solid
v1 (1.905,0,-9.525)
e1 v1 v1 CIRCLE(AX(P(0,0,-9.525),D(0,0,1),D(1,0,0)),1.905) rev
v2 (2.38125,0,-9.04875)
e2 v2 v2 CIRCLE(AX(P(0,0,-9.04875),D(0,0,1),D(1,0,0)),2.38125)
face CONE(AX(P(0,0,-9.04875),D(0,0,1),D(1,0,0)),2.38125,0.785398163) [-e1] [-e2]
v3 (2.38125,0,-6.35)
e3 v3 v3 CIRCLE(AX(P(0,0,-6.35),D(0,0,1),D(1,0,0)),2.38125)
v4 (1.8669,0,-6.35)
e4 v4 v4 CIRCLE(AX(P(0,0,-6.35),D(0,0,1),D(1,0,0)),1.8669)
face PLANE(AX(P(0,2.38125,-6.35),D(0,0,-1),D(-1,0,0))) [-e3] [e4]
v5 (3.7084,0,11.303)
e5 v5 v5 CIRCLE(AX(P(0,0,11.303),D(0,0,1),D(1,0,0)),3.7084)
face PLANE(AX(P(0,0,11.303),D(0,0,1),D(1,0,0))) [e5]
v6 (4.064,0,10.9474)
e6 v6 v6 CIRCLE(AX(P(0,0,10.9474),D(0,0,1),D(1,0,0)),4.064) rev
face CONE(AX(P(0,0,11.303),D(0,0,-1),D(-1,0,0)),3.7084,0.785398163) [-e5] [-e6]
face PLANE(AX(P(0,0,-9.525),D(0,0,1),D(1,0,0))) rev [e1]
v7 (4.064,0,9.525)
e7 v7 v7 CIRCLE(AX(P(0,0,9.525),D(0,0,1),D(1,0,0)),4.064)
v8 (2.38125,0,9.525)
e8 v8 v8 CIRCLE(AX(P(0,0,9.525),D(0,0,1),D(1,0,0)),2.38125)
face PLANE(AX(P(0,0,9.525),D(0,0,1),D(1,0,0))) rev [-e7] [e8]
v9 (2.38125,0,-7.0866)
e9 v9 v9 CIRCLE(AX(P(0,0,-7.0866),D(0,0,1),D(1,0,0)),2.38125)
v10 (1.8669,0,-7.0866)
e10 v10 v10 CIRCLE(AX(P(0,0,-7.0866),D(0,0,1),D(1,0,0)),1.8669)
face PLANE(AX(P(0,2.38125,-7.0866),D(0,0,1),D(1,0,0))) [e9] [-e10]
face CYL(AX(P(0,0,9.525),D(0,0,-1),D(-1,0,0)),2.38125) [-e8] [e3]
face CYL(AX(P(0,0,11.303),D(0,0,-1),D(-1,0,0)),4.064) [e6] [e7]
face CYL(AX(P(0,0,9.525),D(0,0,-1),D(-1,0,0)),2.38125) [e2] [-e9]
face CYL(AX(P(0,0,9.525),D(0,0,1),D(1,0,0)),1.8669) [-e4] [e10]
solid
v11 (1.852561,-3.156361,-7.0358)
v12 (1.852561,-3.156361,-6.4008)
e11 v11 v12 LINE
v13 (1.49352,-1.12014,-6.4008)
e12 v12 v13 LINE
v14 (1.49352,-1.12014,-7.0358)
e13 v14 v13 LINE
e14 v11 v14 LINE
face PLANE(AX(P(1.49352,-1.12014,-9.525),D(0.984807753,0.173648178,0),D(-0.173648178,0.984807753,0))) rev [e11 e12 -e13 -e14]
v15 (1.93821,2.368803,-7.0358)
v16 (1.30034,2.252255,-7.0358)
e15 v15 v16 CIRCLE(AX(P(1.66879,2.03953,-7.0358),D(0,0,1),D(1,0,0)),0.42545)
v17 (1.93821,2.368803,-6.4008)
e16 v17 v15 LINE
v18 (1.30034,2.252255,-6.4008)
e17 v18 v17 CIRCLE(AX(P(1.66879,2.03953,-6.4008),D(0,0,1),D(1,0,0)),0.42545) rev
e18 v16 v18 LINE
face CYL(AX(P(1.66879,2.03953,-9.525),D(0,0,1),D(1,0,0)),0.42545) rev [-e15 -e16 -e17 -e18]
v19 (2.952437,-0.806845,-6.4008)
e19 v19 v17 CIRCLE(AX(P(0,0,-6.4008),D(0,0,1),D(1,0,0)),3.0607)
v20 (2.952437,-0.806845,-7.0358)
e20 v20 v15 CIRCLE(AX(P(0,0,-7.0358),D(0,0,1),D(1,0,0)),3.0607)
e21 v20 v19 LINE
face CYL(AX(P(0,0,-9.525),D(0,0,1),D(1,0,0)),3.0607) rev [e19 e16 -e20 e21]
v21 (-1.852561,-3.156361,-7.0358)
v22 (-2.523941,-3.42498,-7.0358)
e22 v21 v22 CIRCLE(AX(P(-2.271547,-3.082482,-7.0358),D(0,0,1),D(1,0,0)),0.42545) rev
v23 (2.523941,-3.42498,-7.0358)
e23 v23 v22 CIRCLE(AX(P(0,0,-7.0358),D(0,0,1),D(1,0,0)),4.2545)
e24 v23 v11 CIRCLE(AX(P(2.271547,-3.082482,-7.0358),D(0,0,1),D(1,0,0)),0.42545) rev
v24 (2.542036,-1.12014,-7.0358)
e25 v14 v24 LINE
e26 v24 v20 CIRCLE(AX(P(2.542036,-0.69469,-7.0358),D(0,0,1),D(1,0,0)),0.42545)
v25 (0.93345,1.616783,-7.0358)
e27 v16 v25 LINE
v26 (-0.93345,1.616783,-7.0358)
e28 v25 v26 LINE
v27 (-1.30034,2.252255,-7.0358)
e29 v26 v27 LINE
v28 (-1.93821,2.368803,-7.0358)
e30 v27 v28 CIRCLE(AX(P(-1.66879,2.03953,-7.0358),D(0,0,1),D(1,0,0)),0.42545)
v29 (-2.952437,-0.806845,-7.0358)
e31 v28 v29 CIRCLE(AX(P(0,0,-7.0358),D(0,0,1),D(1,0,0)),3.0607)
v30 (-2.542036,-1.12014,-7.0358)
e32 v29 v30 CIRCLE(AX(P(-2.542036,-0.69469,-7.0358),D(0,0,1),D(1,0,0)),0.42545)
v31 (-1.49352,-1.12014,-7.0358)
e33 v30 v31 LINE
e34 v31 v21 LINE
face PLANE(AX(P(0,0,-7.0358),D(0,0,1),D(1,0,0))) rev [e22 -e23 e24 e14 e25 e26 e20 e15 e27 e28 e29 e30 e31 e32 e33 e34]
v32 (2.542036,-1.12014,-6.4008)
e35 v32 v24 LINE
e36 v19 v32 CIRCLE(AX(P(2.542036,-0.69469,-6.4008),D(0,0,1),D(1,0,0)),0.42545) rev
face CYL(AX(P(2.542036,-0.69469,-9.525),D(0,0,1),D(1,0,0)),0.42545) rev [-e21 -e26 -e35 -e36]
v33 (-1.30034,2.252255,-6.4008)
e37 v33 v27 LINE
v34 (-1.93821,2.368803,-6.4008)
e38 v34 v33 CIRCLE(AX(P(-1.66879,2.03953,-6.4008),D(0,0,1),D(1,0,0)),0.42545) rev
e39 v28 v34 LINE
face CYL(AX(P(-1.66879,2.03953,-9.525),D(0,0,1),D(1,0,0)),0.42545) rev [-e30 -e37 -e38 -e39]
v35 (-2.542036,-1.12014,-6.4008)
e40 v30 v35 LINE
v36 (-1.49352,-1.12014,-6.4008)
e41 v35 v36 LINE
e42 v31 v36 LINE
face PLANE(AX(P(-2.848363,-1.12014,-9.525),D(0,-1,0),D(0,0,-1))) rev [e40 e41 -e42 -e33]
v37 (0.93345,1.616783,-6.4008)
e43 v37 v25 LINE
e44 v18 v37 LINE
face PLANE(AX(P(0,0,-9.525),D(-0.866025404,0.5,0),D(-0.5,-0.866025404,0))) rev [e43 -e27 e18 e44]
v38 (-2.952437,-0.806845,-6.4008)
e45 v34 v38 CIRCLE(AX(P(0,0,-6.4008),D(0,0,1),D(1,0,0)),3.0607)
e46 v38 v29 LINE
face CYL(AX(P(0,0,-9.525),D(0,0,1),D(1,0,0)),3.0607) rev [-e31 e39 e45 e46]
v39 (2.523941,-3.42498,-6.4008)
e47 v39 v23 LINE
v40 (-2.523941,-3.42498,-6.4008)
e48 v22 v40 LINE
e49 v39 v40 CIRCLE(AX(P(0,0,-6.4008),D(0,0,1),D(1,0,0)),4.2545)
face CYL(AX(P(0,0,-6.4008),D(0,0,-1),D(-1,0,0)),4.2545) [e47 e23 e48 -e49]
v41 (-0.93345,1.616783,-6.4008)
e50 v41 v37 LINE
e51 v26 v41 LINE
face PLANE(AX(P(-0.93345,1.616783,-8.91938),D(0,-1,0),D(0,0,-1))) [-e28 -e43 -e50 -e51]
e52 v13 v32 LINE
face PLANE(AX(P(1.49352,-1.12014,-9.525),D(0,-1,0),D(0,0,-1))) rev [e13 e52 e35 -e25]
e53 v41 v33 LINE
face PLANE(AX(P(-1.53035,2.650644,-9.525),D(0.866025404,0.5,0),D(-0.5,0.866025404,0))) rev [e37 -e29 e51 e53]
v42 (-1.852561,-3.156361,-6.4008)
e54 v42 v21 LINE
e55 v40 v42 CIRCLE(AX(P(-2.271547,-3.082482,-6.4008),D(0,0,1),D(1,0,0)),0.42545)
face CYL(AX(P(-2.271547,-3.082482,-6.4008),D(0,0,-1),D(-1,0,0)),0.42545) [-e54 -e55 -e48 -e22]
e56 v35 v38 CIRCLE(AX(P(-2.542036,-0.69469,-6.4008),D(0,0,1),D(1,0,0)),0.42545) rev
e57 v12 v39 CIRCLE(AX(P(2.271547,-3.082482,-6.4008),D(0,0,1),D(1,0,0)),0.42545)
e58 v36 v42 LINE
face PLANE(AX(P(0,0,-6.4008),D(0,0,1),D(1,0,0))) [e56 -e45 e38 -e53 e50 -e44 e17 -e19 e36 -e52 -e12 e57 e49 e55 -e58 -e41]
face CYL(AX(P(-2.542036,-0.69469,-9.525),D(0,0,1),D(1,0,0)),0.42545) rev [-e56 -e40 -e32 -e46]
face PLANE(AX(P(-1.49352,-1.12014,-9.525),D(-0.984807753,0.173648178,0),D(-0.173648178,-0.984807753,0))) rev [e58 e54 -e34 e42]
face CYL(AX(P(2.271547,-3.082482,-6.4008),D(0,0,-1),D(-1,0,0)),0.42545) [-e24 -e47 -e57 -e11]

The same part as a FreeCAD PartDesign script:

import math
import FreeCAD as App
import Part
import Sketcher
Q = App.Units.Quantity


def edges_at(feature, points):
    """Names of the edges that pass closest to the given points."""
    edges = feature.Shape.Edges
    near = lambda p: min(range(len(edges)), key=lambda i: edges[i].distToShape(Part.Vertex(*p))[0])
    return sorted({f"Edge{near(p) + 1}" for p in points})


def add_polygon(sketch, points):
    """Adds a closed chain of lines whose ends are joined by coincident constraints."""
    first, n = sketch.GeometryCount, len(points)
    for a, b in zip(points, points[1:] + points[:1]):
        sketch.addGeometry(Part.LineSegment(App.Vector(*a, 0), App.Vector(*b, 0)), False)
    for i in range(n):
        sketch.addConstraint(Sketcher.Constraint("Coincident", first + i, 2, first + (i + 1) % n, 1))

doc = App.newDocument("Part")
body = doc.addObject("PartDesign::Body", "Body")

sketch1 = body.newObject("Sketcher::SketchObject", "Sketch")
sketch1.AttachmentSupport = (doc.getObject("XY_Plane"), [""])
sketch1.MapMode = "FlatFace"
sketch1.addGeometry(Part.Circle(App.Vector(0, 0, 0), App.Vector(0, 0, 1), 2.38125), False)
sketch1.addConstraint([
    Sketcher.Constraint("Coincident", 0, 3, -1, 1),
    Sketcher.Constraint("Diameter", 0, Q("0.1875 in")),
])
pad1 = body.newObject("PartDesign::Pad", "Pad")
pad1.Profile = sketch1
pad1.Length = Q("0.75 in")
pad1.Midplane = True

sketch2 = body.newObject("Sketcher::SketchObject", "Sketch001")
sketch2.AttachmentSupport = (doc.getObject("YZ_Plane"), [""])
sketch2.MapMode = "FlatFace"
add_polygon(sketch2, [(2.38125, -6.35), (1.8669, -6.35), (1.8669, -7.0866), (2.38125, -7.0866)])
sketch2.addConstraint([
    Sketcher.Constraint("Horizontal", 0),
    Sketcher.Constraint("Vertical", 1),
    Sketcher.Constraint("Horizontal", 2),
    Sketcher.Constraint("Vertical", 3),
    Sketcher.Constraint("DistanceY", 1, 2, 1, 1, Q("0.029 in")),
    Sketcher.Constraint("DistanceY", 0, 2, -1, 1, Q("0.25 in")),
    Sketcher.Constraint("DistanceX", -1, 1, 2, 2, Q("0.09375 in")),
    Sketcher.Constraint("DistanceX", -1, 1, 0, 2, Q("0.0735 in")),
])
groove = body.newObject("PartDesign::Groove", "Groove")
groove.Profile = sketch2
groove.ReferenceAxis = (sketch2, ["V_Axis"])
groove.Angle = 360

sketch3 = body.newObject("Sketcher::SketchObject", "Sketch002")
sketch3.AttachmentSupport = (doc.getObject("XY_Plane"), [""])
sketch3.MapMode = "FlatFace"
sketch3.AttachmentOffset = App.Placement(App.Vector(0, 0, 0.375 * 25.4), App.Rotation())
sketch3.addGeometry(Part.Circle(App.Vector(0, 0, 0), App.Vector(0, 0, 1), 4.064), False)
sketch3.addConstraint([
    Sketcher.Constraint("Coincident", 0, 3, -1, 1),
    Sketcher.Constraint("Diameter", 0, Q("0.32 in")),
])
pad2 = body.newObject("PartDesign::Pad", "Pad001")
pad2.Profile = sketch3
pad2.Length = Q("0.07 in")
doc.recompute()

chamfer = body.newObject("PartDesign::Chamfer", "Chamfer")
chamfer.Base = (pad2, edges_at(pad2, [(-4.064, 0, 11.303)]))
chamfer.Size = Q("0.014 in")
doc.recompute()

chamfer2 = body.newObject("PartDesign::Chamfer", "Chamfer001")
chamfer2.Base = (chamfer, edges_at(chamfer, [(-2.381, 0, -9.525)]))
chamfer2.Size = 0.47625
body2 = doc.addObject("PartDesign::Body", "Body001")

sketch4 = body2.newObject("Sketcher::SketchObject", "Sketch003")
sketch4.AttachmentSupport = (doc.getObject("XY_Plane001"), [""])
sketch4.MapMode = "FlatFace"
sketch4.AttachmentOffset = App.Placement(App.Vector(0, 0, -0.2645 * 25.4), App.Rotation())
sketch4.addGeometry([
    Part.Circle(App.Vector(0, 0, 0), App.Vector(0, 0, 1), 4.2545),
    Part.Circle(App.Vector(0, 0, 0), App.Vector(0, 0, 1), 1.8669),
], False)
sketch4.addConstraint([
    Sketcher.Constraint("Coincident", 0, 3, -1, 1),
    Sketcher.Constraint("Coincident", 1, 3, -1, 1),
    Sketcher.Constraint("Diameter", 0, Q("0.335 in")),
    Sketcher.Constraint("Diameter", 1, Q("0.147 in")),
])
pad3 = body2.newObject("PartDesign::Pad", "Pad002")
pad3.Profile = sketch4
pad3.Length = Q("0.025 in")
pad3.Midplane = True

sketch5 = body2.newObject("Sketcher::SketchObject", "Sketch004")
sketch5.AttachmentSupport = (doc.getObject("XY_Plane001"), [""])
sketch5.MapMode = "FlatFace"
sketch5.addGeometry([
    Part.LineSegment(App.Vector(0, 0, 0), App.Vector(-1.53035, 2.650644, 0)),
    Part.ArcOfCircle(Part.Circle(App.Vector(0, 0, 0), App.Vector(0, 0, 1), 3.0607), math.radians(120), math.radians(201.467605)),
    Part.LineSegment(App.Vector(-2.848363, -1.12014, 0), App.Vector(-1.49352, -1.12014, 0)),
    Part.LineSegment(App.Vector(-1.49352, -1.12014, 0), App.Vector(-1.961688, -3.775255, 0)),
    Part.ArcOfCircle(Part.Circle(App.Vector(0, 0, 0), App.Vector(0, 0, 1), 4.2545), math.radians(-117.457177), math.radians(-62.542823)),
    Part.LineSegment(App.Vector(1.961688, -3.775255, 0), App.Vector(1.49352, -1.12014, 0)),
    Part.LineSegment(App.Vector(1.49352, -1.12014, 0), App.Vector(2.848363, -1.12014, 0)),
    Part.ArcOfCircle(Part.Circle(App.Vector(0, 0, 0), App.Vector(0, 0, 1), 3.0607), math.radians(-21.467605), math.radians(60)),
    Part.LineSegment(App.Vector(1.53035, 2.650644, 0), App.Vector(0, 0, 0)),
], False)
sketch5.addConstraint([
    Sketcher.Constraint("Coincident", 0, 2, 1, 1),
    Sketcher.Constraint("Coincident", 1, 2, 2, 1),
    Sketcher.Constraint("Coincident", 2, 2, 3, 1),
    Sketcher.Constraint("Coincident", 3, 2, 4, 1),
    Sketcher.Constraint("Coincident", 4, 2, 5, 1),
    Sketcher.Constraint("Coincident", 5, 2, 6, 1),
    Sketcher.Constraint("Coincident", 6, 2, 7, 1),
    Sketcher.Constraint("Coincident", 7, 2, 8, 1),
    Sketcher.Constraint("Coincident", 8, 2, 0, 1),
    Sketcher.Constraint("Horizontal", 2),
    Sketcher.Constraint("Horizontal", 6),
    Sketcher.Constraint("Coincident", 1, 3, -1, 1),
    Sketcher.Constraint("Coincident", 4, 3, -1, 1),
    Sketcher.Constraint("Coincident", 7, 3, -1, 1),
    Sketcher.Constraint("Coincident", 8, 2, -1, 1),
    Sketcher.Constraint("Equal", 1, 7),
    Sketcher.Constraint("Symmetric", 2, 2, 5, 2, -2),
    Sketcher.Constraint("Horizontal", 3, 2, 4, 2),
    Sketcher.Constraint("Horizontal", 0, 2, 7, 2),
    Sketcher.Constraint("Angle", 0, Q("120 deg")),
    Sketcher.Constraint("Angle", 3, Q("-100 deg")),
    Sketcher.Constraint("Radius", 1, Q("0.1205 in")),
    Sketcher.Constraint("Radius", 4, Q("0.1675 in")),
    Sketcher.Constraint("DistanceY", 1, 2, -1, 1, Q("0.0441 in")),
    Sketcher.Constraint("DistanceX", 2, 2, -1, 1, Q("0.0588 in")),
])
pocket1 = body2.newObject("PartDesign::Pocket", "Pocket")
pocket1.Profile = sketch5
pocket1.Type = "ThroughAll"

sketch6 = body2.newObject("Sketcher::SketchObject", "Sketch005")
sketch6.AttachmentSupport = (doc.getObject("XY_Plane001"), [""])
sketch6.MapMode = "FlatFace"
sketch6.AttachmentOffset = App.Placement(App.Vector(0, 0, -0.252 * 25.4), App.Rotation())
sketch6.addGeometry([
    Part.LineSegment(App.Vector(-0.93345, 1.616783, 0), App.Vector(0.93345, 1.616783, 0)),
    Part.ArcOfCircle(Part.Circle(App.Vector(0, 0, 0), App.Vector(0, 0, 1), 1.8669), math.radians(60), math.radians(120)),
], False)
sketch6.addConstraint([
    Sketcher.Constraint("Coincident", 0, 1, 1, 2),
    Sketcher.Constraint("Coincident", 1, 1, 0, 2),
    Sketcher.Constraint("Horizontal", 0),
    Sketcher.Constraint("Coincident", 1, 3, -1, 1),
    Sketcher.Constraint("Radius", 1, Q("0.0735 in")),
    Sketcher.Constraint("DistanceX", 0, 1, 0, 2, Q("0.0735 in")),
])
pad4 = body2.newObject("PartDesign::Pad", "Pad003")
pad4.Profile = sketch6
pad4.Length = Q("0.025 in")
pad4.Reversed = True
doc.recompute()

fillet = body2.newObject("PartDesign::Fillet", "Fillet")
fillet.Base = (pad4, edges_at(pad4, [
    (1.53, 2.651, -6.718),
    (1.962, -3.775, -6.718),
    (-2.848, -1.12, -6.718),
    (2.848, -1.12, -6.718),
    (-1.962, -3.775, -6.718),
    (-1.53, 2.651, -6.718),
]))
fillet.Radius = 0.42545

doc.recompute()
